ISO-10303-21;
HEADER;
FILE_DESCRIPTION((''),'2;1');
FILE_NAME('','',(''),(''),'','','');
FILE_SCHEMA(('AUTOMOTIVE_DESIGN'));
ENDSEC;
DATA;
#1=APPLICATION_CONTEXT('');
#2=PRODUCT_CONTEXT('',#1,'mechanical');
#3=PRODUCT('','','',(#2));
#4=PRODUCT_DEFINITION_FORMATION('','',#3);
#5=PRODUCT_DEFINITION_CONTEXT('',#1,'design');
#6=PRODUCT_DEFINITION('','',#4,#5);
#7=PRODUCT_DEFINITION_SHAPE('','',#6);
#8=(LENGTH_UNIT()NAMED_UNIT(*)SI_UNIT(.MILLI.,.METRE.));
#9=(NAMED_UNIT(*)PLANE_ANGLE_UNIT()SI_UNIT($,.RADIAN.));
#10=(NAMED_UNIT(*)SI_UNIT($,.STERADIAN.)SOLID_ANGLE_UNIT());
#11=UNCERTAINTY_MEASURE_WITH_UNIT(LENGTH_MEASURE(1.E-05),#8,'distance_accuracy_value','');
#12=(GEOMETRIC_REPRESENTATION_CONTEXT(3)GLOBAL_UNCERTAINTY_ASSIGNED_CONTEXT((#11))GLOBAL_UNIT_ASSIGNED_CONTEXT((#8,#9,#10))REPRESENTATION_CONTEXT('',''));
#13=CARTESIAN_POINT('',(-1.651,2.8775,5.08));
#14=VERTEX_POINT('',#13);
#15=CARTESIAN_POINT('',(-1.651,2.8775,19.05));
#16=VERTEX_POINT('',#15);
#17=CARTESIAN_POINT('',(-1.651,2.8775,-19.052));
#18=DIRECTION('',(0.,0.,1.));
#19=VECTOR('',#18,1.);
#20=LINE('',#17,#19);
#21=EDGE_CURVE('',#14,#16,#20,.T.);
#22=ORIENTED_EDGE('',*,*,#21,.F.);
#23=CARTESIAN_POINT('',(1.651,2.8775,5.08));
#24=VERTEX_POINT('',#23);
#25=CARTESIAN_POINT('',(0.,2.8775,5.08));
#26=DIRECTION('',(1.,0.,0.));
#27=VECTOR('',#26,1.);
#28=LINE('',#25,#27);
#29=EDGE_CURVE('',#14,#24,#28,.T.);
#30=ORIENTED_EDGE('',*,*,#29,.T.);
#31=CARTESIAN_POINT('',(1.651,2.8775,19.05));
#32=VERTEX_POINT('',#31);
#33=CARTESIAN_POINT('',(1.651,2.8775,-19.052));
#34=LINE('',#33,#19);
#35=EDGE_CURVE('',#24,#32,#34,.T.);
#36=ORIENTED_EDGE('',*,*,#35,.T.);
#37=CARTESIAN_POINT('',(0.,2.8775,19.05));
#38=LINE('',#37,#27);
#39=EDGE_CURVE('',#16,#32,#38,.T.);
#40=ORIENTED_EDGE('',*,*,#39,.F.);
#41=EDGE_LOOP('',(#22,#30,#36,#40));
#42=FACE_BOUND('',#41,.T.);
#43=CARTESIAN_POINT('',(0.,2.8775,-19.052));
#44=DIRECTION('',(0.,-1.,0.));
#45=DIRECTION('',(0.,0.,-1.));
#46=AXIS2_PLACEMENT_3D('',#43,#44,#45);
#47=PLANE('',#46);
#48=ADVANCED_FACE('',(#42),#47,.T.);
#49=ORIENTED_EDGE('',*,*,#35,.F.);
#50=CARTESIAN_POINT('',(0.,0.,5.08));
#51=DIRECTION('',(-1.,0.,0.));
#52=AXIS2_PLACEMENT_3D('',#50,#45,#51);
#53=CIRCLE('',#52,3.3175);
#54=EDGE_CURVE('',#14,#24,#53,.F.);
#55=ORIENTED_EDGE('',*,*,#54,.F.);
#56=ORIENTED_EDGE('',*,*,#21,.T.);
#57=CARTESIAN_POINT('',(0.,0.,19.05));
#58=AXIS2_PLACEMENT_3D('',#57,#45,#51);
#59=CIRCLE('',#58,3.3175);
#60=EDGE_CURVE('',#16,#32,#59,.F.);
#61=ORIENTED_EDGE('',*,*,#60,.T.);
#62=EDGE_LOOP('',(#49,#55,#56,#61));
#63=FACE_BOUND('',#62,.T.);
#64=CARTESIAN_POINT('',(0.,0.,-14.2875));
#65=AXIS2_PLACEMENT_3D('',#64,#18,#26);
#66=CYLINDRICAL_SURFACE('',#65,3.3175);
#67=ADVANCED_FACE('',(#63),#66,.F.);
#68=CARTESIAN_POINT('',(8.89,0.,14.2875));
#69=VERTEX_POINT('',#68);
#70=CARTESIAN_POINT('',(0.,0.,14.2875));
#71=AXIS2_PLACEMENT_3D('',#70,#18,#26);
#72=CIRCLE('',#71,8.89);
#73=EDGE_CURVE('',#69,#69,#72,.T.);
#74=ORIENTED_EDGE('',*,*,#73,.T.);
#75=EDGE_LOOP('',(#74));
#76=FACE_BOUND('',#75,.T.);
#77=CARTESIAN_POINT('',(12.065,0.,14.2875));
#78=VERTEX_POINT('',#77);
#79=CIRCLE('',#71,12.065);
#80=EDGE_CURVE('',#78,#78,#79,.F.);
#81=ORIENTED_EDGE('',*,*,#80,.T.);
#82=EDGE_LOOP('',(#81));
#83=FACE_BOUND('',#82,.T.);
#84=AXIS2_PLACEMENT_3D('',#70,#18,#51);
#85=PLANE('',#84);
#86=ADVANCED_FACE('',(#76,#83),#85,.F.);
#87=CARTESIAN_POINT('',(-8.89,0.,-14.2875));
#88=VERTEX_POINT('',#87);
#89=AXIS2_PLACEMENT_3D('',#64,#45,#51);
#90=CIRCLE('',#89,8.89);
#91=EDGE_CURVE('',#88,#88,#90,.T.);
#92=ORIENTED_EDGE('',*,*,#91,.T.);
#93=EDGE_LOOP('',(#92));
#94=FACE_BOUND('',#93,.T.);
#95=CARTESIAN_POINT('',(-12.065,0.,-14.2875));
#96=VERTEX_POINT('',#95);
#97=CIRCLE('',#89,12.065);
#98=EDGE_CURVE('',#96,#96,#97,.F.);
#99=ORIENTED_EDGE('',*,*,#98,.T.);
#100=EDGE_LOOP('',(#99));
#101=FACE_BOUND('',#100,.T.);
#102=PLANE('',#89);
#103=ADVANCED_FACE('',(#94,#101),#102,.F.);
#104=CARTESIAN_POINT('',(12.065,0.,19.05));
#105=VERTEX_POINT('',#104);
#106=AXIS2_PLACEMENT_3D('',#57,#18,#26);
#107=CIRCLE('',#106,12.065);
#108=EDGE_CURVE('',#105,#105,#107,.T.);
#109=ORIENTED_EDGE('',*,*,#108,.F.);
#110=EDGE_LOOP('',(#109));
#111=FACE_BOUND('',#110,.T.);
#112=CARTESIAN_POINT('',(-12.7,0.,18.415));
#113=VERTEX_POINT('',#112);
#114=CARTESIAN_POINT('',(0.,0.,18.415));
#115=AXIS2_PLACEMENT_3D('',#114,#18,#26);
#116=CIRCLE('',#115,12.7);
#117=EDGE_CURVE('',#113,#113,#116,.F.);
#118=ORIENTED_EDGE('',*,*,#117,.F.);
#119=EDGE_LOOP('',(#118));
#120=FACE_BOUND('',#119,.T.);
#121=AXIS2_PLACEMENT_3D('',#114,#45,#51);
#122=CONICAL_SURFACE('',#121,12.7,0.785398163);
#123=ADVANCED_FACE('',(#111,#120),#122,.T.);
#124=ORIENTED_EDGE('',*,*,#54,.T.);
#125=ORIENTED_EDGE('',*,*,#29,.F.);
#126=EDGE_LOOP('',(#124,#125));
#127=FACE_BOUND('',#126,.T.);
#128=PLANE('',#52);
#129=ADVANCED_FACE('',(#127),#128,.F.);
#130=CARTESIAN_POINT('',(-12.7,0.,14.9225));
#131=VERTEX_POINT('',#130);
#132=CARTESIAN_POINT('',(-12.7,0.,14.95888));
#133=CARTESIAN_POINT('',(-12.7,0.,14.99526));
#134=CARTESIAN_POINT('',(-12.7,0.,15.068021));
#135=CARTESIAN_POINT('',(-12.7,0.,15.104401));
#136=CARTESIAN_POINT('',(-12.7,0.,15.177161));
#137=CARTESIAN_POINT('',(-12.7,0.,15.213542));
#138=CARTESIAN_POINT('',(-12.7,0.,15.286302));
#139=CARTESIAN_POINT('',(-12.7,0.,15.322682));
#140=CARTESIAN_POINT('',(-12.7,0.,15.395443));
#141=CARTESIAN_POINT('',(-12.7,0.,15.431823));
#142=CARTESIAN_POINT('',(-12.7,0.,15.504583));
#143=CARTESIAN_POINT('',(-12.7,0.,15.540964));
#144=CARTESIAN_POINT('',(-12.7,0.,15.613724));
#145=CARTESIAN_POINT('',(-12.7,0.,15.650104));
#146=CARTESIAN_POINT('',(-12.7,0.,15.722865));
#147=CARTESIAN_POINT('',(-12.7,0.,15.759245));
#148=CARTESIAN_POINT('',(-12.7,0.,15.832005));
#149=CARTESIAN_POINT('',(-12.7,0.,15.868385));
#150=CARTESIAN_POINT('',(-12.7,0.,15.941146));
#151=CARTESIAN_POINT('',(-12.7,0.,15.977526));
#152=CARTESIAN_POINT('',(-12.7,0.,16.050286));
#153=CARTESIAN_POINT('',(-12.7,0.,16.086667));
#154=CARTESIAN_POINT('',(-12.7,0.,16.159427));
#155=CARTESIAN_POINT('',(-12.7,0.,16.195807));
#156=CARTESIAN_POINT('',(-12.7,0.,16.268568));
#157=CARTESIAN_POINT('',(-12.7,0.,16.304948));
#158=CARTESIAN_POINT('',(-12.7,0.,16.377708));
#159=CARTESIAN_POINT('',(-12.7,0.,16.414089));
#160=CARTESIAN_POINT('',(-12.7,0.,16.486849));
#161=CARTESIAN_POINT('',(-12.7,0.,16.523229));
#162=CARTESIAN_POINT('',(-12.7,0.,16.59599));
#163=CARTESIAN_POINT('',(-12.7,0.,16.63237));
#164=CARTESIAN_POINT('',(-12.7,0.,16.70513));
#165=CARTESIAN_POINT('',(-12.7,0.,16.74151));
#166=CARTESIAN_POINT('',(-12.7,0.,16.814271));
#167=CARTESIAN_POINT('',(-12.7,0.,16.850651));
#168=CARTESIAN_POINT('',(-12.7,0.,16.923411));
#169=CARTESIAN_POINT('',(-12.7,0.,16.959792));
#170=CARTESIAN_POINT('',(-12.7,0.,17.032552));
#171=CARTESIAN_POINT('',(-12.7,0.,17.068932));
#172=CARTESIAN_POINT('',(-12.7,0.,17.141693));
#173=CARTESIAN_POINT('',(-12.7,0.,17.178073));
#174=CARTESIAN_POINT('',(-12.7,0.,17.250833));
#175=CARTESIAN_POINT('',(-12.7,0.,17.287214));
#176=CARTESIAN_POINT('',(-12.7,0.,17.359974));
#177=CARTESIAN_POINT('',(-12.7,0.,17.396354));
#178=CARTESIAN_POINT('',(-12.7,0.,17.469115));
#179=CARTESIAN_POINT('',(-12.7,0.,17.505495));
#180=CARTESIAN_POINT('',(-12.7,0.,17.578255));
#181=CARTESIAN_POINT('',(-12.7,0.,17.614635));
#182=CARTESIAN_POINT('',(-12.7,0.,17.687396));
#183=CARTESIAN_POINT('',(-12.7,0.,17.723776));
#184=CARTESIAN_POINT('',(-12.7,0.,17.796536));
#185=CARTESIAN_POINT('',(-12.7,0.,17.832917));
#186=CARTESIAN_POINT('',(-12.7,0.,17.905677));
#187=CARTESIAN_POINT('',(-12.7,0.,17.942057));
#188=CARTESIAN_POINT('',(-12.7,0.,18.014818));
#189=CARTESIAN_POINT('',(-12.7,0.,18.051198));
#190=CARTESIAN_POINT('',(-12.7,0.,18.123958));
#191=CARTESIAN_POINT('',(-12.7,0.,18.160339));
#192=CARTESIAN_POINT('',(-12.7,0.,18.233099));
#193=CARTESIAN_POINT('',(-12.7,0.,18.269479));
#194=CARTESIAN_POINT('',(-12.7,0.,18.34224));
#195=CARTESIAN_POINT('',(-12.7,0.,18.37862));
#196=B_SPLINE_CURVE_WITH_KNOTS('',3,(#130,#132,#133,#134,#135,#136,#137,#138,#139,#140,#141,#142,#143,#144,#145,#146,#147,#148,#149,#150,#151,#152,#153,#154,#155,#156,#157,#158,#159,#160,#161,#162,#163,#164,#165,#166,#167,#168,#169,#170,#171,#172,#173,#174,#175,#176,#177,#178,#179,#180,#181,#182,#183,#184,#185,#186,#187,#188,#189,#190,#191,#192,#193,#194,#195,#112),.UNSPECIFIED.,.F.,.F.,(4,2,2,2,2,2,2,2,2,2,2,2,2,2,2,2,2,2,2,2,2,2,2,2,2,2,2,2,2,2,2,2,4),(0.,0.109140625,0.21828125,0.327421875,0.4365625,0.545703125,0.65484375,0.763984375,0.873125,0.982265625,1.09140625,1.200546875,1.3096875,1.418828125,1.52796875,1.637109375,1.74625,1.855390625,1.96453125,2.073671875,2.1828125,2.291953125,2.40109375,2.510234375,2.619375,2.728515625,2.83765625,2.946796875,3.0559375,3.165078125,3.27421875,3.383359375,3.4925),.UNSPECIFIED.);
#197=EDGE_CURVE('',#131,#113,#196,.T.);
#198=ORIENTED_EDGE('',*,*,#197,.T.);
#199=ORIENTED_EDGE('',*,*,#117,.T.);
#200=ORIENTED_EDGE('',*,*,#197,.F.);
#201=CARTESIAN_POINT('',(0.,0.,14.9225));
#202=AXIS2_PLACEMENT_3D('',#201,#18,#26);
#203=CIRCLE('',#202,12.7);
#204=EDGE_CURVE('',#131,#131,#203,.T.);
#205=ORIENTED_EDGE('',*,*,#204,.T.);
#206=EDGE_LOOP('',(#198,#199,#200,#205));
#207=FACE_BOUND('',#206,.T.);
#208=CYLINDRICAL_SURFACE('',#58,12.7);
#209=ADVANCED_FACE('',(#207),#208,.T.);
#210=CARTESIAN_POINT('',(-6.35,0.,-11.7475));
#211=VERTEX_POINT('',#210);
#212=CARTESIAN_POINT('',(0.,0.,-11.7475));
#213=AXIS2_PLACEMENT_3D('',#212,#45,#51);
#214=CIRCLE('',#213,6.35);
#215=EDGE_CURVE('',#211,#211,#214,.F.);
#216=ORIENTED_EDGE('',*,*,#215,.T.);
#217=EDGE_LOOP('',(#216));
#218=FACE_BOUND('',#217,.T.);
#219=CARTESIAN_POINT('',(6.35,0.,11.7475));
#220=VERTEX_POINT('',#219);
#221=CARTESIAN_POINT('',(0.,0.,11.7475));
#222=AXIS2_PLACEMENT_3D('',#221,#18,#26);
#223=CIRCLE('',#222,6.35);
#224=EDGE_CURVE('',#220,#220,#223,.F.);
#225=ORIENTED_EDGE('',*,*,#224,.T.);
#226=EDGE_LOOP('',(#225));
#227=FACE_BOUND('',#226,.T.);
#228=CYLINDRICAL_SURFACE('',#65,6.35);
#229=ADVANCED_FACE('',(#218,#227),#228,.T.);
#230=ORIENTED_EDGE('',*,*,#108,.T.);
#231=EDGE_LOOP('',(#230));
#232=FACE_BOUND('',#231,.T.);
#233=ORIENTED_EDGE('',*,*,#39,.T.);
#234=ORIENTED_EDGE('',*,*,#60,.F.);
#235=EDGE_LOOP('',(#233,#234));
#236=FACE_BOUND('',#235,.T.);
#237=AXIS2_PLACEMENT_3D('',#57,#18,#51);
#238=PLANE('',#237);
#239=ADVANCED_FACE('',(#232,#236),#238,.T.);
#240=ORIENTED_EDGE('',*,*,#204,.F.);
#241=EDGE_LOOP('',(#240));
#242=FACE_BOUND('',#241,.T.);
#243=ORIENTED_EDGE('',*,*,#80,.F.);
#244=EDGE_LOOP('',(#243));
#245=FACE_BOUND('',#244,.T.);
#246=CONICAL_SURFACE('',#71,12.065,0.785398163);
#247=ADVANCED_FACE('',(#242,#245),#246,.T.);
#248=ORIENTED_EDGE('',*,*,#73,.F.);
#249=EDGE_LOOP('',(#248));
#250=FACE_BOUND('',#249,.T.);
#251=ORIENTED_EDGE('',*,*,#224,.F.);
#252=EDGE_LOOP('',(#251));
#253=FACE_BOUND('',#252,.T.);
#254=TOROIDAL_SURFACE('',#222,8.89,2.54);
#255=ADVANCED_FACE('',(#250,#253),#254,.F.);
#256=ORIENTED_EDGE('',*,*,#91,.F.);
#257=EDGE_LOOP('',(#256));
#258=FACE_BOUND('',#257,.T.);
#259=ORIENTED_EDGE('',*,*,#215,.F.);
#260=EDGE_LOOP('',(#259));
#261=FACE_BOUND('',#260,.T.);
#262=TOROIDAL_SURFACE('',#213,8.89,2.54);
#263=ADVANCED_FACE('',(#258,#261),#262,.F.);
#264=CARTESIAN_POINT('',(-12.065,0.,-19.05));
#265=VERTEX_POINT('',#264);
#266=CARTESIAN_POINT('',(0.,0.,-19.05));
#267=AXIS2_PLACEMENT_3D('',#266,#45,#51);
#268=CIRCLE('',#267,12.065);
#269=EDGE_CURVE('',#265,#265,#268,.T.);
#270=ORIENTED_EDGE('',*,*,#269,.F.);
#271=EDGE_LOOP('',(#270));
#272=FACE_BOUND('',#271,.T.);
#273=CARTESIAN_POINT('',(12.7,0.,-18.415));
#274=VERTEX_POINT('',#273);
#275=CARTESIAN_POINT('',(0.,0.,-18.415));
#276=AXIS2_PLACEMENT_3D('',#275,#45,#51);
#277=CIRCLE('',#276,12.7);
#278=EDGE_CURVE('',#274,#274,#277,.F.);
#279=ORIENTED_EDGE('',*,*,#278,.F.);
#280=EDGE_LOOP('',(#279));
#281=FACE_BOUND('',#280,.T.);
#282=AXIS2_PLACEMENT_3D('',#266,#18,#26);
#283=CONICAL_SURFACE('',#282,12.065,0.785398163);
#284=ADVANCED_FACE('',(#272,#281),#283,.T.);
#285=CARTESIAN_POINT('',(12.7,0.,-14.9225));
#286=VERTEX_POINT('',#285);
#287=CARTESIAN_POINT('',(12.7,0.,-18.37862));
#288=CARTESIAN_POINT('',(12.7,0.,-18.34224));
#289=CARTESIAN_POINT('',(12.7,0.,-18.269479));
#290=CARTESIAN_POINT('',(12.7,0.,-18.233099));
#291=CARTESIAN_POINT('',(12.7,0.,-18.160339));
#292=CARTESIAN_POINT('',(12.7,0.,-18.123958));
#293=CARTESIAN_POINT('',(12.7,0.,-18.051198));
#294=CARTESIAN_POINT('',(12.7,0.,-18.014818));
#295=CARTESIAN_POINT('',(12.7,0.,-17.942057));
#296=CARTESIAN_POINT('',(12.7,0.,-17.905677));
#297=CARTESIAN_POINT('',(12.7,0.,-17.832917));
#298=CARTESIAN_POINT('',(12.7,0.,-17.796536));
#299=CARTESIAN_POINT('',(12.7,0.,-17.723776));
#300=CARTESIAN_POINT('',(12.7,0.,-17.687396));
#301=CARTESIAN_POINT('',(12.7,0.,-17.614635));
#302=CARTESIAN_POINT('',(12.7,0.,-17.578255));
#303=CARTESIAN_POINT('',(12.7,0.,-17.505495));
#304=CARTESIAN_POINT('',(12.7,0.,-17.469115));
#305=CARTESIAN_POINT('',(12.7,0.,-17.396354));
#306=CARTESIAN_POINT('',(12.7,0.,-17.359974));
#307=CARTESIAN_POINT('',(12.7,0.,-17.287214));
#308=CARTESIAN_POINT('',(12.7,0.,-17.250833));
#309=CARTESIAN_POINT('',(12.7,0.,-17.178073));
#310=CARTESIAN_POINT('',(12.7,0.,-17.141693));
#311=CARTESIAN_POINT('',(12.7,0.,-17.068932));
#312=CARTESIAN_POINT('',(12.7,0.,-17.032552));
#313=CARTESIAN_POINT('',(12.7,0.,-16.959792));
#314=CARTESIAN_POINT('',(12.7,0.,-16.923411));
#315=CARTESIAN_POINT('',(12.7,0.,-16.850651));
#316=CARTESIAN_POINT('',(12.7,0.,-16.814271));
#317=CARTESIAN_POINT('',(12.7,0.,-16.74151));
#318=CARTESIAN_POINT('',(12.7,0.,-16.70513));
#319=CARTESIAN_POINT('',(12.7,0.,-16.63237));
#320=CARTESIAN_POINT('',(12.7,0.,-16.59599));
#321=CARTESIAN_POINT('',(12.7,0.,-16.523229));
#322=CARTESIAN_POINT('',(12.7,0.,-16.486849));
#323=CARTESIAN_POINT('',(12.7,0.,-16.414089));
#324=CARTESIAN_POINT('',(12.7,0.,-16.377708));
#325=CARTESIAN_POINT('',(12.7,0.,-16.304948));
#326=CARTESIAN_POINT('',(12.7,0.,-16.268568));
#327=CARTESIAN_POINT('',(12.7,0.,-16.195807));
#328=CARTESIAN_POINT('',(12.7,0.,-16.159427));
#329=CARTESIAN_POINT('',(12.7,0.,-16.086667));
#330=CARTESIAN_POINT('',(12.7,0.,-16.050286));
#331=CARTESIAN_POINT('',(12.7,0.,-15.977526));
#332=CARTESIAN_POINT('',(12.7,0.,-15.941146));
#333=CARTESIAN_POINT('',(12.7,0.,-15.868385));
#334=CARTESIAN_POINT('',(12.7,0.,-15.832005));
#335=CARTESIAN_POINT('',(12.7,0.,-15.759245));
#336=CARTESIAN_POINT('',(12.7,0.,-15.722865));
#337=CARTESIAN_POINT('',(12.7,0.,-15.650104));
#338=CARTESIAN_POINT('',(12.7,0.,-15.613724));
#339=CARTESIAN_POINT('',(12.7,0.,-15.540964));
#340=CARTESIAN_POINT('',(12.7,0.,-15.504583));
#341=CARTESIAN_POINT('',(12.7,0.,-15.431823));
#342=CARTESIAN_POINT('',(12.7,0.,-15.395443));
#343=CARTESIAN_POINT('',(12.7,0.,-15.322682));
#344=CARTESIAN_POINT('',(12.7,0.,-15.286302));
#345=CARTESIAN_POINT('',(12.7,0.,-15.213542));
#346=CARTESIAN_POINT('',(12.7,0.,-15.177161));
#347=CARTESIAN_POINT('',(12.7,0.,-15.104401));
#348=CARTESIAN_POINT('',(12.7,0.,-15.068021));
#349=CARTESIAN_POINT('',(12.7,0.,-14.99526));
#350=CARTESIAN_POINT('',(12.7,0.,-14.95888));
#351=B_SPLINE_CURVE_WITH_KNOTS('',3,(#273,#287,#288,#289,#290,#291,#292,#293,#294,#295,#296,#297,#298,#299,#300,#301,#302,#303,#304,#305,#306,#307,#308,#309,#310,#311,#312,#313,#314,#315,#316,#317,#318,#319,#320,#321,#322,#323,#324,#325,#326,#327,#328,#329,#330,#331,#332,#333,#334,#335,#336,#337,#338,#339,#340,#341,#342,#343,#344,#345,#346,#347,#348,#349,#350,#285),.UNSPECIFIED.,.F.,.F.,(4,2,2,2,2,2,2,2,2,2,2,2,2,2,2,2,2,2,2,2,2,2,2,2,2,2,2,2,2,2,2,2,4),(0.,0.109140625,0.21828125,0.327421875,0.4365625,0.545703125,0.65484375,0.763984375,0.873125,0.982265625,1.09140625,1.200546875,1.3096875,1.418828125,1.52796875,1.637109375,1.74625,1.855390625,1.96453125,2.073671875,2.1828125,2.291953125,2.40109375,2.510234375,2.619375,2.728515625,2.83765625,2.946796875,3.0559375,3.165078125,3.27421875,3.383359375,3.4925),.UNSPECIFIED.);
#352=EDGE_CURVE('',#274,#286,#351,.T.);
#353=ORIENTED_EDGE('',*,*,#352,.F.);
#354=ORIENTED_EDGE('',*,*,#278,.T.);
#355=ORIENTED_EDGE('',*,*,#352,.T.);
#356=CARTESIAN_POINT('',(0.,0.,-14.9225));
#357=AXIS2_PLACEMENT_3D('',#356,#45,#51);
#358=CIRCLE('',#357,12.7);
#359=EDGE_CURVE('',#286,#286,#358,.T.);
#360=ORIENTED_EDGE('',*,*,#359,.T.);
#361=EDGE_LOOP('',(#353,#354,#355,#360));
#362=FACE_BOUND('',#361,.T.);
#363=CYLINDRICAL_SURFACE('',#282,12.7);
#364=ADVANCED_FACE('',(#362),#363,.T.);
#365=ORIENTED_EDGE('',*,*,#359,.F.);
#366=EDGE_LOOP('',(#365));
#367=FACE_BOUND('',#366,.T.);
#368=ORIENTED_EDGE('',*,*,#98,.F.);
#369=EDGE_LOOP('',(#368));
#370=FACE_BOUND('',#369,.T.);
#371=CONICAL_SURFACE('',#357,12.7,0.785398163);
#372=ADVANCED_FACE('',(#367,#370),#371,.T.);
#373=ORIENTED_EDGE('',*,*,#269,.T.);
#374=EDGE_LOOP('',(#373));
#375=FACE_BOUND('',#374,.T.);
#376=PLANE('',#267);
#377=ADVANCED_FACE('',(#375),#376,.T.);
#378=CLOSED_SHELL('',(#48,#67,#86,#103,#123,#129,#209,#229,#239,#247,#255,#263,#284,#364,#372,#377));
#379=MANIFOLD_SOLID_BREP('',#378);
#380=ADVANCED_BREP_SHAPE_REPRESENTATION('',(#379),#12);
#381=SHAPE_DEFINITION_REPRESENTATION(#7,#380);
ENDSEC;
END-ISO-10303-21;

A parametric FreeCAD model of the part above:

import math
import FreeCAD as App
import Part
import Sketcher
from FreeCAD import Vector
Q = App.Units.Quantity


def edges_at(feature, points):
    """Names of the edges that pass closest to the given points."""
    edges = feature.Shape.Edges
    near = lambda p: min(range(len(edges)), key=lambda i: edges[i].distToShape(Part.Vertex(*p))[0])
    return sorted({f"Edge{near(p) + 1}" for p in points})

doc = App.newDocument("Part")
body = doc.addObject("PartDesign::Body", "Body")

# Sketch on XY plane
sketch1 = body.newObject("Sketcher::SketchObject", "Sketch")
sketch1.AttachmentSupport = (doc.getObject("XY_Plane"), [""])
sketch1.MapMode = "FlatFace"
sketch1.addGeometry(Part.Circle(Vector(0, 0, 0), Vector(0, 0, 1), 6.3), False)
sketch1.addGeometry(Part.Circle(Vector(0, 0, 0), Vector(0, 0, 1), 3.3), False)
sketch1.addConstraint(Sketcher.Constraint("Coincident", 0, 3, -1, 1))
sketch1.addConstraint(Sketcher.Constraint("Coincident", 1, 3, -1, 1))
sketch1.addConstraint(Sketcher.Constraint("Diameter", 0, Q("0.5 in")))
sketch1.addConstraint(Sketcher.Constraint("Diameter", 1, 6.635))
pad1 = body.newObject("PartDesign::Pad", "Pad")
pad1.Profile = sketch1
pad1.Type = "TwoLengths"
pad1.Length = Q("0.5625 in")
pad1.Length2 = Q("0.5625 in")

# Sketch on XY plane
sketch2 = body.newObject("Sketcher::SketchObject", "Sketch001")
sketch2.AttachmentSupport = (doc.getObject("XY_Plane"), [""])
sketch2.MapMode = "FlatFace"
sketch2.AttachmentOffset = App.Placement(Vector(0, 0, -0.5625 * 25.4), App.Rotation())
sketch2.addGeometry(Part.Circle(Vector(0, 0, 0), Vector(0, 0, 1), 12.7), False)
sketch2.addGeometry(Part.Circle(Vector(0, 0, 0), Vector(0, 0, 1), 3.3), False)
sketch2.addConstraint(Sketcher.Constraint("Coincident", 0, 3, -1, 1))
sketch2.addConstraint(Sketcher.Constraint("Coincident", 1, 3, -1, 1))
sketch2.addConstraint(Sketcher.Constraint("Diameter", 0, Q("1 in")))
sketch2.addConstraint(Sketcher.Constraint("Diameter", 1, 6.635))
pad2 = body.newObject("PartDesign::Pad", "Pad001")
pad2.Profile = sketch2
pad2.Length = Q("0.1875 in")
pad2.Reversed = True
doc.recompute()

mirrored = body.newObject("PartDesign::Mirrored", "Mirrored")
mirrored.Originals = [pad2]
mirrored.MirrorPlane = (doc.getObject("XY_Plane"), [""])
body.Tip = mirrored

# Sketch on XY plane
sketch3 = body.newObject("Sketcher::SketchObject", "Sketch002")
sketch3.AttachmentSupport = (doc.getObject("XY_Plane"), [""])
sketch3.MapMode = "FlatFace"
sketch3.AttachmentOffset = App.Placement(Vector(0, 0, -0.75 * 25.4), App.Rotation())
sketch3.addGeometry(Part.Circle(Vector(0, 0, 0), Vector(0, 0, 1), 3.3), False)
sketch3.addConstraint(Sketcher.Constraint("Coincident", 0, 3, -1, 1))
sketch3.addConstraint(Sketcher.Constraint("Diameter", 0, 6.635))
pad3 = body.newObject("PartDesign::Pad", "Pad002")
pad3.Profile = sketch3
pad3.Length = Q("0.95 in")
doc.recompute()

fillet = body.newObject("PartDesign::Fillet", "Fillet")
fillet.Base = (pad3, edges_at(pad3, [(-6.35, 0, -14.287), (-6.35, 0, 14.287)]))
fillet.Radius = Q("0.1 in")
doc.recompute()

chamfer = body.newObject("PartDesign::Chamfer", "Chamfer")
chamfer.Base = (fillet, edges_at(fillet, [
    (-12.7, 0, -14.287),
    (-12.7, 0, -19.05),
    (-12.7, 0, 19.05),
    (-12.7, 0, 14.287),
]))
chamfer.Size = Q("0.025 in")

# Sketch on XY plane
sketch4 = body.newObject("Sketcher::SketchObject", "Sketch003")
sketch4.AttachmentSupport = (doc.getObject("XY_Plane"), [""])
sketch4.MapMode = "FlatFace"
sketch4.AttachmentOffset = App.Placement(Vector(0, 0, 0.75 * 25.4), App.Rotation())
sketch4.addGeometry(Part.ArcOfCircle(Part.Circle(Vector(0, 0, 0), Vector(0, 0, 1), 3.3), math.radians(60), math.radians(120)), False)
sketch4.addGeometry(Part.LineSegment(Vector(-1.7, 2.9, 0), Vector(1.7, 2.9, 0)), False)
sketch4.addConstraint(Sketcher.Constraint("Coincident", 0, 1, 1, 2))
sketch4.addConstraint(Sketcher.Constraint("Coincident", 1, 1, 0, 2))
sketch4.addConstraint(Sketcher.Constraint("Horizontal", 1))
sketch4.addConstraint(Sketcher.Constraint("Coincident", 0, 3, -1, 1))
sketch4.addConstraint(Sketcher.Constraint("DistanceX", 1, 1, 1, 2, Q("0.13 in")))
sketch4.addConstraint(Sketcher.Constraint("Radius", 0, 3.3175))
pad4 = body.newObject("PartDesign::Pad", "Pad003")
pad4.Profile = sketch4
pad4.Type = "UpToFirst"
pad4.Reversed = True

doc.recompute()
